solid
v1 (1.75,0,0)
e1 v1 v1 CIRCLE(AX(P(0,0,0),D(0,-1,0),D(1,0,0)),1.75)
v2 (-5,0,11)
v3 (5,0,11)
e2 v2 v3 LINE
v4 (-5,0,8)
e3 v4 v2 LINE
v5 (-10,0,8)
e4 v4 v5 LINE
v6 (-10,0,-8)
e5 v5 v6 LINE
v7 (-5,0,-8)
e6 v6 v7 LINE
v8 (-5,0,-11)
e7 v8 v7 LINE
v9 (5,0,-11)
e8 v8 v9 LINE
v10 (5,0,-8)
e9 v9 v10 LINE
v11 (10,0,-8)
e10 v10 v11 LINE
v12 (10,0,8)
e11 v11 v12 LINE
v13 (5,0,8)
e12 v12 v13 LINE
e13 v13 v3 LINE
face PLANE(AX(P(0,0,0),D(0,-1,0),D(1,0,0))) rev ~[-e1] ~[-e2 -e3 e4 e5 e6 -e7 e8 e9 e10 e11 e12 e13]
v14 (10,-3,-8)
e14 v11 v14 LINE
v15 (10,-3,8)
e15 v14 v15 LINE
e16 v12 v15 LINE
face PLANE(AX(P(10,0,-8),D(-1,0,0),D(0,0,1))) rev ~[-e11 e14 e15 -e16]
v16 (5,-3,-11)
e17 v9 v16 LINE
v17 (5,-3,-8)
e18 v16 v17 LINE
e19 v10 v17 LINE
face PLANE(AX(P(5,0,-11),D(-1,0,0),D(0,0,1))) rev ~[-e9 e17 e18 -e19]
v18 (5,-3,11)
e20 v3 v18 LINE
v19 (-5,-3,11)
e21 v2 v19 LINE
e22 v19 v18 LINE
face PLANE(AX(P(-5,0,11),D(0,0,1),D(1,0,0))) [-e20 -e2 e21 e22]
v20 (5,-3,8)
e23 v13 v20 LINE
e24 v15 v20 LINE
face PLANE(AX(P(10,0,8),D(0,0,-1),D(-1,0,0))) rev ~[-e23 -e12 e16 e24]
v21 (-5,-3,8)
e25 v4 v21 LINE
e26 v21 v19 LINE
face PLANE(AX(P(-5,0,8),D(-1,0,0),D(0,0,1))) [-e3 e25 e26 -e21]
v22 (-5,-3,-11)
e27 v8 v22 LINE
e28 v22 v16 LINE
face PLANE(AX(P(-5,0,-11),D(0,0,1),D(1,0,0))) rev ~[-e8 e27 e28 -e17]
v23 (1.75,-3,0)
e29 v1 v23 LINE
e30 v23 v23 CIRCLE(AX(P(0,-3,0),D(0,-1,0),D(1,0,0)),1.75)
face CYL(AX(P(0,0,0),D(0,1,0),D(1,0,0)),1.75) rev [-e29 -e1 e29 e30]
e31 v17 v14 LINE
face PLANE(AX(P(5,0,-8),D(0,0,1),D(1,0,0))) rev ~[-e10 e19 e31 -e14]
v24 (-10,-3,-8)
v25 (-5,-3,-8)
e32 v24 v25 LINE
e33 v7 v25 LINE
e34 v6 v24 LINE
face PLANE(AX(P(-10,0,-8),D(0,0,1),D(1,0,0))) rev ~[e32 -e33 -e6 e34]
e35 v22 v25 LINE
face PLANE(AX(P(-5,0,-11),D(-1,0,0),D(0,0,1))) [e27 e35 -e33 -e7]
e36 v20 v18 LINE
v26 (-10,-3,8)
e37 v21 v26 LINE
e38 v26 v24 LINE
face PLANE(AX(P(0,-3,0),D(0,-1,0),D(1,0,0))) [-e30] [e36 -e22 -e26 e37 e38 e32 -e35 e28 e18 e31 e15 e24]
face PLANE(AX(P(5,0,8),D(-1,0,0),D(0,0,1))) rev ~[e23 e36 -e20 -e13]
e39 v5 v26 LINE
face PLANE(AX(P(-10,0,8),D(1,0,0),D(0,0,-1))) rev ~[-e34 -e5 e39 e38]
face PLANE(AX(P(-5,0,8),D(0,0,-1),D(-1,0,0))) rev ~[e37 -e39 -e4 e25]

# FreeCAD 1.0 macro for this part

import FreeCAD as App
import Part
import Sketcher
from FreeCAD import Vector
Q = App.Units.Quantity


def add_polygon(sketch, points):
    """Adds a closed chain of lines whose ends are joined by coincident constraints."""
    first, n = sketch.GeometryCount, len(points)
    for a, b in zip(points, points[1:] + points[:1]):
        sketch.addGeometry(Part.LineSegment(App.Vector(*a, 0), App.Vector(*b, 0)), False)
    for i in range(n):
        sketch.addConstraint(Sketcher.Constraint("Coincident", first + i, 2, first + (i + 1) % n, 1))

doc = App.newDocument("Part")
body = doc.addObject("PartDesign::Body", "Body")

sketch1 = doc.addObject("Sketcher::SketchObject", "Sketch")
body.addObject(sketch1)
sketch1.AttachmentSupport = (doc.XZ_Plane, [""])
sketch1.MapMode = "FlatFace"
add_polygon(sketch1, [(10, -8), (10, 8), (5, 8), (5, 11), (-5, 11), (-5, 8), (-10, 8), (-10, -8), (-5, -8), (-5, -11), (5, -11), (5, -8)])
sketch1.addGeometry(Part.Circle(Vector(0, 0, 0), Vector(0, 0, 1), 1.75), False)
sketch1.addConstraint([
    Sketcher.Constraint("Vertical", 0),
    Sketcher.Constraint("Horizontal", 1),
    Sketcher.Constraint("Vertical", 2),
    Sketcher.Constraint("Horizontal", 3),
    Sketcher.Constraint("Vertical", 4),
    Sketcher.Constraint("Horizontal", 5),
    Sketcher.Constraint("Vertical", 6),
    Sketcher.Constraint("Horizontal", 7),
    Sketcher.Constraint("Vertical", 8),
    Sketcher.Constraint("Horizontal", 9),
    Sketcher.Constraint("Vertical", 10),
    Sketcher.Constraint("Horizontal", 11),
    Sketcher.Constraint("Coincident", 12, 3, -1, 1),
    Sketcher.Constraint("Symmetric", 0, 2, 6, 2, -1, 1),
    Sketcher.Constraint("Symmetric", 2, 2, 8, 2, -1, 1),
    Sketcher.Constraint("Symmetric", 4, 2, 10, 2, -1, 1),
    Sketcher.Constraint("Symmetric", 1, 2, 4, 2, -2),
    Sketcher.Constraint("Diameter", 12, Q("3.5 mm")),
    Sketcher.Constraint("DistanceX", 1, 2, 1, 1, Q("5 mm")),
    Sketcher.Constraint("DistanceX", 3, 2, 3, 1, Q("10 mm")),
    Sketcher.Constraint("DistanceY", 0, 1, 0, 2, Q("16 mm")),
    Sketcher.Constraint("DistanceY", 2, 1, 2, 2, Q("3 mm")),
])
pad1 = doc.addObject("PartDesign::Pad", "Pad")
body.addObject(pad1)
pad1.Profile = sketch1
pad1.Length = 3

doc.recompute()
